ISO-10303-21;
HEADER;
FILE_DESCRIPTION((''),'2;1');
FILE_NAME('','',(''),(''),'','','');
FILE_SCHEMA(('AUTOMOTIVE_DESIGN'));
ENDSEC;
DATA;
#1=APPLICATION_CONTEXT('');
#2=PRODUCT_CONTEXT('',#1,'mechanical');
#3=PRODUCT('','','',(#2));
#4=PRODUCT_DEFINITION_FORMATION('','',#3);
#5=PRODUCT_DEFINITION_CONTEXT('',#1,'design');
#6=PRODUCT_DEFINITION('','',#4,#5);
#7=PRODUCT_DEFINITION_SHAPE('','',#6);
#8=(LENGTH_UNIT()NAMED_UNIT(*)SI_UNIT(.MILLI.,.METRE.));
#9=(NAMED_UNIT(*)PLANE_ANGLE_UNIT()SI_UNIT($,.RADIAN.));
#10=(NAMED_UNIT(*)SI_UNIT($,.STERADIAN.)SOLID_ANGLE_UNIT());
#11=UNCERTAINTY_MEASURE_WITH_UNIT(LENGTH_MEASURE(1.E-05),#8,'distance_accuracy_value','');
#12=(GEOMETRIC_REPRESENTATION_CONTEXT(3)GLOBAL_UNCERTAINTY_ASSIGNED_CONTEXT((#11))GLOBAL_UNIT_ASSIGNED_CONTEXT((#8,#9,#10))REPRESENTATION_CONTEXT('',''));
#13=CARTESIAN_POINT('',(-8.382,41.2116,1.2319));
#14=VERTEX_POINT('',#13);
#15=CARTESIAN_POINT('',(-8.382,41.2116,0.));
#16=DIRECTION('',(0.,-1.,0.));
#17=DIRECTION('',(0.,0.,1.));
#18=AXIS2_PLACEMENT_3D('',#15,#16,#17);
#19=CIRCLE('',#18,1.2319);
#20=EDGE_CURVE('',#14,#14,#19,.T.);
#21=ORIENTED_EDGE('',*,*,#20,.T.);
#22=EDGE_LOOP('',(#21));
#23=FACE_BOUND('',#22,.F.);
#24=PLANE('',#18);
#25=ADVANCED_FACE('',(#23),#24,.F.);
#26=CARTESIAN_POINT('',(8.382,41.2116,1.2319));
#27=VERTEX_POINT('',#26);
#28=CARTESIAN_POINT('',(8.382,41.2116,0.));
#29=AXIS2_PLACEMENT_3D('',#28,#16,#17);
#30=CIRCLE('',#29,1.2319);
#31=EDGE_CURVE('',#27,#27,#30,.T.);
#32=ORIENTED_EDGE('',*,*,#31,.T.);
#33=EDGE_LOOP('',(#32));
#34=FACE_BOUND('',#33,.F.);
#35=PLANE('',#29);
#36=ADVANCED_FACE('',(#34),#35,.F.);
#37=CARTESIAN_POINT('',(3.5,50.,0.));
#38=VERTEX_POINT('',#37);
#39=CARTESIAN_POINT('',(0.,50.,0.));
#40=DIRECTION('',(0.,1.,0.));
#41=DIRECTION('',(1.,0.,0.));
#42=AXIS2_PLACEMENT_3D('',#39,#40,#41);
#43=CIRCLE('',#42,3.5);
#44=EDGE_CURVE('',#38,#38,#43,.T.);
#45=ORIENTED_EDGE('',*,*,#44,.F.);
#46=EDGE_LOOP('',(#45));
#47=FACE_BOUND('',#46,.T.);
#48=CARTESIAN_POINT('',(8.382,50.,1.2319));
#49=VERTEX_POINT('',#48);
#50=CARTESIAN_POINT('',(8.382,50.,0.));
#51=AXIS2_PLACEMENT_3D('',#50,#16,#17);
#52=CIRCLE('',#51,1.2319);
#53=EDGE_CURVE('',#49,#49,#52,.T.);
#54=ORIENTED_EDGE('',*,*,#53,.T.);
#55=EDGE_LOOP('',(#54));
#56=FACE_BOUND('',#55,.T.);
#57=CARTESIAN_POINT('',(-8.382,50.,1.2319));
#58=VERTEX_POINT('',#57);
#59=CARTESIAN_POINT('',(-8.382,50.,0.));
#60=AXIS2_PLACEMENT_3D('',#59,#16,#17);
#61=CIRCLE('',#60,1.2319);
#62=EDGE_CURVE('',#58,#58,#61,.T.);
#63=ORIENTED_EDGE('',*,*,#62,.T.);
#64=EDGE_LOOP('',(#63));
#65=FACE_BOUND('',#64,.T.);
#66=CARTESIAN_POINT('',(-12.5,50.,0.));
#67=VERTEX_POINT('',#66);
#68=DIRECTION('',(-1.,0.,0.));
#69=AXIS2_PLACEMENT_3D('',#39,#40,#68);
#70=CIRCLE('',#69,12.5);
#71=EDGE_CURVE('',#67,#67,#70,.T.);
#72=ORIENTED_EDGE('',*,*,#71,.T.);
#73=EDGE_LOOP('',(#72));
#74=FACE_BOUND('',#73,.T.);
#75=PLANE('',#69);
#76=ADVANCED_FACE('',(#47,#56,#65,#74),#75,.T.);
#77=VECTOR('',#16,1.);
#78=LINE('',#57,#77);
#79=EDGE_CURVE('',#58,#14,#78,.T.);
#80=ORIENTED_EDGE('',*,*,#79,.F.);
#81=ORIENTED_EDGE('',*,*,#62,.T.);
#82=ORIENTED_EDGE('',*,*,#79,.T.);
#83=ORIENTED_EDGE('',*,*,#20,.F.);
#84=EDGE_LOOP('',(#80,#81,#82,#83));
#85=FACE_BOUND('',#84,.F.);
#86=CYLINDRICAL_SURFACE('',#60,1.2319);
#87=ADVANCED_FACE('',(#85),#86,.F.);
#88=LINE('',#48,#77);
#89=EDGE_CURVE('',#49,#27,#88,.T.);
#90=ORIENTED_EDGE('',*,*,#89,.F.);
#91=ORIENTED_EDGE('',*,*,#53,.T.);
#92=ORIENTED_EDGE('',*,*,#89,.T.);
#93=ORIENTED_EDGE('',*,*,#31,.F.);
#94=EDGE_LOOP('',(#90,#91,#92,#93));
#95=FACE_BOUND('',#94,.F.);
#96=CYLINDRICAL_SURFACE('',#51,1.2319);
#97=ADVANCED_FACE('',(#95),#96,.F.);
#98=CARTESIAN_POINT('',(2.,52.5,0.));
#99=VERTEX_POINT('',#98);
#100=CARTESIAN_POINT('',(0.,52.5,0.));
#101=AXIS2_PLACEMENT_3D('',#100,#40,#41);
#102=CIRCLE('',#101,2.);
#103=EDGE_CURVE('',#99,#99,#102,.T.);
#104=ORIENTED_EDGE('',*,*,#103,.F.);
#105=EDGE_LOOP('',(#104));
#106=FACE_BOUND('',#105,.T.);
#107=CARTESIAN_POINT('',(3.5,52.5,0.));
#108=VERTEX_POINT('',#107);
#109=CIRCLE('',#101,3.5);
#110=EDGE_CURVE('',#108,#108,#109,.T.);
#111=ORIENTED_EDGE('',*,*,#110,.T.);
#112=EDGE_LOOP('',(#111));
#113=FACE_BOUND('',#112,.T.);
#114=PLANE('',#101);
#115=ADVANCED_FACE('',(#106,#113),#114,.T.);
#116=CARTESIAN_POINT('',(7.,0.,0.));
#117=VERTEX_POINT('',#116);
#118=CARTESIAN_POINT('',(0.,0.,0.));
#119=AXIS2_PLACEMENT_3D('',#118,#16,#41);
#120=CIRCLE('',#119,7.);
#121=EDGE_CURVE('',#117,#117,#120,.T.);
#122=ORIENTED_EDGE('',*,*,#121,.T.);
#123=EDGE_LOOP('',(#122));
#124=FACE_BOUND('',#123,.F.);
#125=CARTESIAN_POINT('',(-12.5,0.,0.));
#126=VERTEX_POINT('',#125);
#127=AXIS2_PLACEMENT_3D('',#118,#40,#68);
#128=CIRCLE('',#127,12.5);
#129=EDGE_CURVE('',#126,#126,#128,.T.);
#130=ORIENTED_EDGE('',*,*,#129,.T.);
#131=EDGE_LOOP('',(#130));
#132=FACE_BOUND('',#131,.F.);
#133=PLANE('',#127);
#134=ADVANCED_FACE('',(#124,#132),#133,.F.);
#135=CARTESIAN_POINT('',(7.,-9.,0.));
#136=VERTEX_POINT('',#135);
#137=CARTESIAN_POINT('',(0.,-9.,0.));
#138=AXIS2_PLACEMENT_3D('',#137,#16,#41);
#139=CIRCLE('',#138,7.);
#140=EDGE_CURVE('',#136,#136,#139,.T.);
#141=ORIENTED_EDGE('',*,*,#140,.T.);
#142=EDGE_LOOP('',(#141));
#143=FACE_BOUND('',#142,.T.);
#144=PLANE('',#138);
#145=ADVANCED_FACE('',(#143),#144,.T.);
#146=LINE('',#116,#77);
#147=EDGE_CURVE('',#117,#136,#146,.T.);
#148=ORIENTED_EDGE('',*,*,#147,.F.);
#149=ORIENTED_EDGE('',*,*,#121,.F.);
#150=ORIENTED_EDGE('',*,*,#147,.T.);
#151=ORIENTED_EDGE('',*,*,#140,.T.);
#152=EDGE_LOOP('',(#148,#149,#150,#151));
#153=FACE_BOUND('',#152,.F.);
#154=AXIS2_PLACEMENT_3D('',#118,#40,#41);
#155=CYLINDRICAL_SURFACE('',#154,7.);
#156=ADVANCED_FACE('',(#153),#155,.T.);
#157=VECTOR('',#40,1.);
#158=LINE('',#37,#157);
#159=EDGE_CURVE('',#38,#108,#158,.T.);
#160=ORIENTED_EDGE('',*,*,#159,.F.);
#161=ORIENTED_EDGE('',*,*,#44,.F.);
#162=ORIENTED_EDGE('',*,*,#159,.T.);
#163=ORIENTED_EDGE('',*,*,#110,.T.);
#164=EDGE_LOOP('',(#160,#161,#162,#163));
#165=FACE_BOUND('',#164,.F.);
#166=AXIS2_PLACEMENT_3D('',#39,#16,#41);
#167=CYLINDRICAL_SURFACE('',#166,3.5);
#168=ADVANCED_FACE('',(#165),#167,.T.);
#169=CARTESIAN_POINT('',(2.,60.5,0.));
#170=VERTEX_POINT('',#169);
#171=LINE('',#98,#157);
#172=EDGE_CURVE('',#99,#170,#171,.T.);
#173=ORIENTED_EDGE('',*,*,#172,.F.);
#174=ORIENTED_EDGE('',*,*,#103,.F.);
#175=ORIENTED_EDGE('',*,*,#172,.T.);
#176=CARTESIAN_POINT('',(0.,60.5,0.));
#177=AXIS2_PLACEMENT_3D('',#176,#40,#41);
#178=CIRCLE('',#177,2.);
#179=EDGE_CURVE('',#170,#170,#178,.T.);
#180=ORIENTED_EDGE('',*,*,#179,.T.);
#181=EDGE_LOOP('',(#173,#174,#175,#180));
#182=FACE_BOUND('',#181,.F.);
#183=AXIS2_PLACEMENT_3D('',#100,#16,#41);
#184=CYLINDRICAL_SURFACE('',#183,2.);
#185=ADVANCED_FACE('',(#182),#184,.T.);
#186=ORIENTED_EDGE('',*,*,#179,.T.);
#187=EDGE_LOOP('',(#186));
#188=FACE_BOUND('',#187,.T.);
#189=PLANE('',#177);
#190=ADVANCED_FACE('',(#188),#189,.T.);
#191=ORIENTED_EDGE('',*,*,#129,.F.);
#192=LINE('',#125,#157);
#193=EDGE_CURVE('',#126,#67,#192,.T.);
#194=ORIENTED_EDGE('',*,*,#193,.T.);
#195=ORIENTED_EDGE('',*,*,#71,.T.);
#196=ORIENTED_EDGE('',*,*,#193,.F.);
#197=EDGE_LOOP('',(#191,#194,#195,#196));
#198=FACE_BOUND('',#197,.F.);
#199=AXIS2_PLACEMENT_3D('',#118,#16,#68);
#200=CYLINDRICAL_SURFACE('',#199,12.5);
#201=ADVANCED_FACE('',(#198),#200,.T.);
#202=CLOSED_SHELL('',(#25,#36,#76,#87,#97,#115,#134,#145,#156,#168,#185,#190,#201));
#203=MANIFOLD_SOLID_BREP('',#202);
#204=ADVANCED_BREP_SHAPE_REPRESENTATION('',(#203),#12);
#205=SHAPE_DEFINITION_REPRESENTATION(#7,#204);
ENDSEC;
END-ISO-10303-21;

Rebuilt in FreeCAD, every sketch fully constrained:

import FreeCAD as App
import Part
import Sketcher

doc = App.newDocument("Part")
body = doc.addObject("PartDesign::Body", "Body")

# Sketch on XZ plane
sketch1 = body.newObject("Sketcher::SketchObject", "Sketch")
sketch1.AttachmentSupport = (doc.getObject("XZ_Plane"), [""])
sketch1.MapMode = "FlatFace"
sketch1.addGeometry(Part.Circle(App.Vector(0, 0, 0), App.Vector(0, 0, 1), 12), False)
sketch1.addConstraint(Sketcher.Constraint("Coincident", 0, 3, -1, 1))
sketch1.addConstraint(Sketcher.Constraint("Diameter", 0, 25.0))
pad1 = body.newObject("PartDesign::Pad", "Pad")
pad1.Profile = sketch1
pad1.Length = 50
pad1.Reversed = True

# Sketch on XZ plane
sketch2 = body.newObject("Sketcher::SketchObject", "Sketch001")
sketch2.AttachmentSupport = (doc.getObject("XZ_Plane"), [""])
sketch2.MapMode = "FlatFace"
sketch2.AttachmentOffset = App.Placement(App.Vector(0, 0, -50), App.Rotation())
sketch2.addGeometry(Part.Circle(App.Vector(0, 0, 0), App.Vector(0, 0, 1), 3.5), False)
sketch2.addConstraint(Sketcher.Constraint("Coincident", 0, 3, -1, 1))
sketch2.addConstraint(Sketcher.Constraint("Diameter", 0, 7.0))
pad2 = body.newObject("PartDesign::Pad", "Pad001")
pad2.Profile = sketch2
pad2.Length = 2.5
pad2.Reversed = True

# Sketch on XZ plane
sketch3 = body.newObject("Sketcher::SketchObject", "Sketch002")
sketch3.AttachmentSupport = (doc.getObject("XZ_Plane"), [""])
sketch3.MapMode = "FlatFace"
sketch3.AttachmentOffset = App.Placement(App.Vector(0, 0, -52.5), App.Rotation())
sketch3.addGeometry(Part.Circle(App.Vector(0, 0, 0), App.Vector(0, 0, 1), 2), False)
sketch3.addConstraint(Sketcher.Constraint("Coincident", 0, 3, -1, 1))
sketch3.addConstraint(Sketcher.Constraint("Diameter", 0, 4.0))
pad3 = body.newObject("PartDesign::Pad", "Pad002")
pad3.Profile = sketch3
pad3.Length = 8
pad3.Reversed = True

# Sketch on XZ plane
sketch4 = body.newObject("Sketcher::SketchObject", "Sketch003")
sketch4.AttachmentSupport = (doc.getObject("XZ_Plane"), [""])
sketch4.MapMode = "FlatFace"
sketch4.addGeometry(Part.Circle(App.Vector(0, 0, 0), App.Vector(0, 0, 1), 7), False)
sketch4.addConstraint(Sketcher.Constraint("Coincident", 0, 3, -1, 1))
sketch4.addConstraint(Sketcher.Constraint("Diameter", 0, 14.0))
pad4 = body.newObject("PartDesign::Pad", "Pad003")
pad4.Profile = sketch4
pad4.Length = 9

# Sketch on XZ plane
sketch5 = body.newObject("Sketcher::SketchObject", "Sketch004")
sketch5.AttachmentSupport = (doc.getObject("XZ_Plane"), [""])
sketch5.MapMode = "FlatFace"
sketch5.AttachmentOffset = App.Placement(App.Vector(0, 0, -50), App.Rotation())
sketch5.addGeometry(Part.Circle(App.Vector(-8.4, 0, 0), App.Vector(0, 0, 1), 1.2), False)
sketch5.addGeometry(Part.Circle(App.Vector(8.4, 0, 0), App.Vector(0, 0, 1), 1.2), False)
sketch5.addConstraint(Sketcher.Constraint("Equal", 0, 1))
sketch5.addConstraint(Sketcher.Constraint("Symmetric", 0, 3, 1, 3, -1, 1))
sketch5.addConstraint(Sketcher.Constraint("PointOnObject", 0, 3, -1))
sketch5.addConstraint(Sketcher.Constraint("Diameter", 0, 2.4638))
sketch5.addConstraint(Sketcher.Constraint("DistanceX", 0, 3, -1, 1, 8.382))
doc.recompute()
hole = body.newObject("PartDesign::Hole", "Hole")
hole.Profile = sketch5
hole.ThreadType = "None"
hole.Diameter = 2.4638
hole.DepthType = "Dimension"
hole.Depth = 8.7884
hole.DrillPoint = "Flat"
hole.Reversed = True

doc.recompute()
